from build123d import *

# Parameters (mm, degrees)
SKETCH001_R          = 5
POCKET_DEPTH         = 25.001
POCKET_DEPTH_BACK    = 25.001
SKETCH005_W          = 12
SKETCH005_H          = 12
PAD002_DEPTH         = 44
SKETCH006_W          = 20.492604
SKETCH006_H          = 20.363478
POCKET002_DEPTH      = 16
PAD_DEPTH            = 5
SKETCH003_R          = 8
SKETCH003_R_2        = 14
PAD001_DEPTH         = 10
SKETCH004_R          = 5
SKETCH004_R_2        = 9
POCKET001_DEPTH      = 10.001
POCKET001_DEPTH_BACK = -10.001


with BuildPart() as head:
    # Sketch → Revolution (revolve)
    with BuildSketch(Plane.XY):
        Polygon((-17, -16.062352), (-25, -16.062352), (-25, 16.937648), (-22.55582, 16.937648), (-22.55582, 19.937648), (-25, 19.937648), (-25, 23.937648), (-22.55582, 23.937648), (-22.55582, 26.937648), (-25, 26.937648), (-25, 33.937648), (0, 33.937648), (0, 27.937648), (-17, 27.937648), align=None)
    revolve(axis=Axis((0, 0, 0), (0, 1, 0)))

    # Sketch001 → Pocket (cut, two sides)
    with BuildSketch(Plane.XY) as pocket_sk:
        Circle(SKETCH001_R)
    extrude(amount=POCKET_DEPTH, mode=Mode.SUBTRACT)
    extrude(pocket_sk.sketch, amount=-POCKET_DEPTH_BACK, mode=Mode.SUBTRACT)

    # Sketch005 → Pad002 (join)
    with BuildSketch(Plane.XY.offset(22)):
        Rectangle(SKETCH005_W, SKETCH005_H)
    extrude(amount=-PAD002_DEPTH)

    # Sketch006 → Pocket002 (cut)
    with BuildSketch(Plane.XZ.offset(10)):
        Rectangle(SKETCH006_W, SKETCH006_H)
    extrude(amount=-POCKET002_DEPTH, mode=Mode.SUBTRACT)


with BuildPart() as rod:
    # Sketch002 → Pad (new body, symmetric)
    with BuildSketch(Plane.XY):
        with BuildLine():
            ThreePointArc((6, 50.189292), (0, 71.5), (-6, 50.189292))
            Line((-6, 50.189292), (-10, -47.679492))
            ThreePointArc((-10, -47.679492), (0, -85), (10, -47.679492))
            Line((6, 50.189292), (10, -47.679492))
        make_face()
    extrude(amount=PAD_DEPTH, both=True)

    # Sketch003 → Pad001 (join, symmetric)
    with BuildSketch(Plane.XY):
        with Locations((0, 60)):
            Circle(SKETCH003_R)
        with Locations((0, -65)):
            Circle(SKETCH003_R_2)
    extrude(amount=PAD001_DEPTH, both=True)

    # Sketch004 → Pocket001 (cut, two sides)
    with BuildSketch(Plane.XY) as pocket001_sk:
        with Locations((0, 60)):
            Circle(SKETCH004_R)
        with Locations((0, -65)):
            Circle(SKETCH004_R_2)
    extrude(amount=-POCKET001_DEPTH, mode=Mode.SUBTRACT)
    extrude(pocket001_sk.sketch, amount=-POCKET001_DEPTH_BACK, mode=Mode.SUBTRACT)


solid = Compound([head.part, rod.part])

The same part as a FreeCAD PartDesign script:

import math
import FreeCAD as App
import Part
import Sketcher
from FreeCAD import Vector

doc = App.newDocument("Part")
body = doc.addObject("PartDesign::Body", "Body")

# Sketch on XY plane
sketch1 = doc.addObject("Sketcher::SketchObject", "Sketch")
body.addObject(sketch1)
sketch1.AttachmentSupport = (doc.XY_Plane, [""])
sketch1.MapMode = "FlatFace"
sketch1.addGeometry([
    Part.LineSegment(Vector(-25, -16.1, 0), Vector(-17, -16.1, 0)),  # 0
    Part.LineSegment(Vector(-17, -16.1, 0), Vector(-17, 27.9, 0)),  # 1
    Part.LineSegment(Vector(-17, 27.9, 0), Vector(0, 27.9, 0)),  # 2
    Part.LineSegment(Vector(0, 27.9, 0), Vector(0, 33.9, 0)),  # 3
    Part.LineSegment(Vector(0, 33.9, 0), Vector(-25, 33.9, 0)),  # 4
    Part.LineSegment(Vector(-25, 33.9, 0), Vector(-25, 26.9, 0)),  # 5
    Part.LineSegment(Vector(-25, 26.9, 0), Vector(-22.6, 26.9, 0)),  # 6
    Part.LineSegment(Vector(-22.6, 26.9, 0), Vector(-22.6, 23.9, 0)),  # 7
    Part.LineSegment(Vector(-22.6, 23.9, 0), Vector(-25, 23.9, 0)),  # 8
    Part.LineSegment(Vector(-25, 23.9, 0), Vector(-25, 19.9, 0)),  # 9
    Part.LineSegment(Vector(-25, 19.9, 0), Vector(-22.6, 19.9, 0)),  # 10
    Part.LineSegment(Vector(-22.6, 19.9, 0), Vector(-22.6, 16.9, 0)),  # 11
    Part.LineSegment(Vector(-22.6, 16.9, 0), Vector(-25, 16.9, 0)),  # 12
    Part.LineSegment(Vector(-25, 16.9, 0), Vector(-25, -16.1, 0)),  # 13
], False)
sketch1.addConstraint([
    Sketcher.Constraint("Coincident", 0, 2, 1, 1),
    Sketcher.Constraint("Coincident", 1, 2, 2, 1),
    Sketcher.Constraint("Coincident", 2, 2, 3, 1),
    Sketcher.Constraint("Coincident", 3, 2, 4, 1),
    Sketcher.Constraint("Coincident", 4, 2, 5, 1),
    Sketcher.Constraint("Coincident", 5, 2, 6, 1),
    Sketcher.Constraint("Coincident", 6, 2, 7, 1),
    Sketcher.Constraint("Coincident", 7, 2, 8, 1),
    Sketcher.Constraint("Coincident", 8, 2, 9, 1),
    Sketcher.Constraint("Coincident", 9, 2, 10, 1),
    Sketcher.Constraint("Coincident", 10, 2, 11, 1),
    Sketcher.Constraint("Coincident", 11, 2, 12, 1),
    Sketcher.Constraint("Coincident", 12, 2, 13, 1),
    Sketcher.Constraint("Coincident", 13, 2, 0, 1),
    Sketcher.Constraint("Horizontal", 0),
    Sketcher.Constraint("Vertical", 1),
    Sketcher.Constraint("Horizontal", 2),
    Sketcher.Constraint("Vertical", 3),
    Sketcher.Constraint("Horizontal", 4),
    Sketcher.Constraint("Vertical", 5),
    Sketcher.Constraint("Horizontal", 6),
    Sketcher.Constraint("Vertical", 7),
    Sketcher.Constraint("Horizontal", 8),
    Sketcher.Constraint("Vertical", 9),
    Sketcher.Constraint("Horizontal", 10),
    Sketcher.Constraint("Vertical", 11),
    Sketcher.Constraint("Horizontal", 12),
    Sketcher.Constraint("Vertical", 13),
    Sketcher.Constraint("PointOnObject", 2, 2, -2),
    Sketcher.Constraint("Vertical", 5, 2, 8, 2),
    Sketcher.Constraint("Vertical", 7, 2, 10, 2),
    Sketcher.Constraint("Vertical", 9, 2, 12, 2),
    Sketcher.Constraint("Equal", 7, 11),
    Sketcher.Constraint("DistanceX", 0, 1, 0, 2, 8.0),
    Sketcher.Constraint("DistanceX", 2, 1, 2, 2, 17.0),
    Sketcher.Constraint("DistanceY", 1, 1, 1, 2, 44.0),
    Sketcher.Constraint("DistanceY", 3, 1, 3, 2, 6.0),
    Sketcher.Constraint("DistanceY", 5, 2, 5, 1, 7.0),
    Sketcher.Constraint("DistanceY", 7, 2, 7, 1, 3.0),
    Sketcher.Constraint("DistanceY", 9, 2, 9, 1, 4.0),
    Sketcher.Constraint("DistanceX", 6, 1, 6, 2, 2.44418),
    Sketcher.Constraint("DistanceY", -1, 1, 3, 2, 33.937648),
])
revolution = doc.addObject("PartDesign::Revolution", "Revolution")
body.addObject(revolution)
revolution.Profile = sketch1
revolution.ReferenceAxis = (sketch1, ["V_Axis"])
revolution.Angle = 360

# Sketch on XY plane
sketch2 = doc.addObject("Sketcher::SketchObject", "Sketch001")
body.addObject(sketch2)
sketch2.AttachmentSupport = (doc.XY_Plane, [""])
sketch2.MapMode = "FlatFace"
sketch2.addGeometry(Part.Circle(Vector(0, 0, 0), Vector(0, 0, 1), 5), False)
sketch2.addConstraint([
    Sketcher.Constraint("Coincident", 0, 3, -1, 1),
    Sketcher.Constraint("Diameter", 0, 10.0),
])
pocket1 = doc.addObject("PartDesign::Pocket", "Pocket")
body.addObject(pocket1)
pocket1.Profile = sketch2
pocket1.Type = "ThroughAll"
pocket1.Midplane = True

# Sketch on XY plane
sketch3 = doc.addObject("Sketcher::SketchObject", "Sketch002")
body.addObject(sketch3)
sketch3.AttachmentSupport = (doc.XY_Plane, [""])
sketch3.MapMode = "FlatFace"
sketch3.AttachmentOffset = App.Placement(Vector(0, 0, 22), App.Rotation())
sketch3.addGeometry([
    Part.LineSegment(Vector(-6, 6, 0), Vector(-6, -6, 0)),
    Part.LineSegment(Vector(-6, -6, 0), Vector(6, -6, 0)),
    Part.LineSegment(Vector(6, -6, 0), Vector(6, 6, 0)),
    Part.LineSegment(Vector(6, 6, 0), Vector(-6, 6, 0)),
], False)
sketch3.addConstraint([
    Sketcher.Constraint("Coincident", 0, 2, 1, 1),
    Sketcher.Constraint("Coincident", 1, 2, 2, 1),
    Sketcher.Constraint("Coincident", 2, 2, 3, 1),
    Sketcher.Constraint("Coincident", 3, 2, 0, 1),
    Sketcher.Constraint("Vertical", 0),
    Sketcher.Constraint("Horizontal", 1),
    Sketcher.Constraint("Vertical", 2),
    Sketcher.Constraint("Horizontal", 3),
    Sketcher.Constraint("Symmetric", 0, 2, 2, 2, -1, 1),
    Sketcher.Constraint("Equal", 3, 0),
    Sketcher.Constraint("DistanceX", 1, 1, 1, 2, 12.0),
])
pad1 = doc.addObject("PartDesign::Pad", "Pad")
body.addObject(pad1)
pad1.Profile = sketch3
pad1.Length = 44
pad1.Reversed = True

# Sketch on XZ plane
sketch4 = doc.addObject("Sketcher::SketchObject", "Sketch003")
body.addObject(sketch4)
sketch4.AttachmentSupport = (doc.XZ_Plane, [""])
sketch4.MapMode = "FlatFace"
sketch4.AttachmentOffset = App.Placement(Vector(0, 0, 10), App.Rotation())
sketch4.addGeometry([
    Part.LineSegment(Vector(-10, 10, 0), Vector(-10, -10, 0)),
    Part.LineSegment(Vector(-10, -10, 0), Vector(10, -10, 0)),
    Part.LineSegment(Vector(10, -10, 0), Vector(10, 10, 0)),
    Part.LineSegment(Vector(10, 10, 0), Vector(-10, 10, 0)),
], False)
sketch4.addConstraint([
    Sketcher.Constraint("Coincident", 0, 2, 1, 1),
    Sketcher.Constraint("Coincident", 1, 2, 2, 1),
    Sketcher.Constraint("Coincident", 2, 2, 3, 1),
    Sketcher.Constraint("Coincident", 3, 2, 0, 1),
    Sketcher.Constraint("Vertical", 0),
    Sketcher.Constraint("Horizontal", 1),
    Sketcher.Constraint("Vertical", 2),
    Sketcher.Constraint("Horizontal", 3),
    Sketcher.Constraint("Symmetric", 0, 2, 2, 2, -1, 1),
    Sketcher.Constraint("DistanceY", 0, 2, 0, 1, 20.363478),
    Sketcher.Constraint("DistanceX", 1, 1, 1, 2, 20.492604),
])
pocket2 = doc.addObject("PartDesign::Pocket", "Pocket001")
body.addObject(pocket2)
pocket2.Profile = sketch4
pocket2.Length = 16
body2 = doc.addObject("PartDesign::Body", "Body001")

# Sketch on XY plane
sketch5 = doc.addObject("Sketcher::SketchObject", "Sketch004")
body2.addObject(sketch5)
sketch5.AttachmentSupport = (doc.getObject("XY_Plane001"), [""])
sketch5.MapMode = "FlatFace"
sketch5.addGeometry([
    Part.ArcOfCircle(Part.Circle(Vector(0, 60, 0), Vector(0, 0, 1), 11), math.radians(-59), math.radians(239)),
    Part.LineSegment(Vector(-6, 50, 0), Vector(-10, -48, 0)),
    Part.ArcOfCircle(Part.Circle(Vector(0, -65, 0), Vector(0, 0, 1), 20), math.radians(120), math.radians(420)),
    Part.LineSegment(Vector(10, -48, 0), Vector(6, 50, 0)),
], False)
sketch5.addConstraint([
    Sketcher.Constraint("Coincident", 0, 2, 1, 1),
    Sketcher.Constraint("Coincident", 1, 2, 2, 1),
    Sketcher.Constraint("Coincident", 2, 2, 3, 1),
    Sketcher.Constraint("Coincident", 3, 2, 0, 1),
    Sketcher.Constraint("Symmetric", 1, 2, 2, 2, -2),
    Sketcher.Constraint("Symmetric", 0, 2, 3, 2, -2),
    Sketcher.Constraint("Radius", 2, 20.0),
    Sketcher.Constraint("Radius", 0, 11.5),
    Sketcher.Constraint("DistanceY", -1, 1, 0, 3, 60.0),
    Sketcher.Constraint("DistanceY", 2, 3, -1, 1, 65.0),
    Sketcher.Constraint("DistanceX", 0, 2, -1, 1, 6.0),
    Sketcher.Constraint("DistanceX", 1, 2, -1, 1, 10.0),
])
pad2 = doc.addObject("PartDesign::Pad", "Pad001")
body2.addObject(pad2)
pad2.Profile = sketch5
pad2.Length = 10
pad2.Midplane = True

# Sketch on XY plane
sketch6 = doc.addObject("Sketcher::SketchObject", "Sketch005")
body2.addObject(sketch6)
sketch6.AttachmentSupport = (doc.getObject("XY_Plane001"), [""])
sketch6.MapMode = "FlatFace"
sketch6.addGeometry([
    Part.Circle(Vector(0, 60, 0), Vector(0, 0, 1), 8),
    Part.Circle(Vector(0, -65, 0), Vector(0, 0, 1), 14),
], False)
sketch6.addConstraint([
    Sketcher.Constraint("PointOnObject", 0, 3, -2),
    Sketcher.Constraint("PointOnObject", 1, 3, -2),
    Sketcher.Constraint("Diameter", 0, 16.0),
    Sketcher.Constraint("Diameter", 1, 28.0),
    Sketcher.Constraint("DistanceY", -1, 1, 0, 3, 60.0),
    Sketcher.Constraint("DistanceY", 1, 3, -1, 1, 65.0),
])
pad3 = doc.addObject("PartDesign::Pad", "Pad002")
body2.addObject(pad3)
pad3.Profile = sketch6
pad3.Length = 20
pad3.Midplane = True

# Sketch on XY plane
sketch7 = doc.addObject("Sketcher::SketchObject", "Sketch006")
body2.addObject(sketch7)
sketch7.AttachmentSupport = (doc.getObject("XY_Plane001"), [""])
sketch7.MapMode = "FlatFace"
sketch7.addGeometry([
    Part.Circle(Vector(0, 60, 0), Vector(0, 0, 1), 5),
    Part.Circle(Vector(0, -65, 0), Vector(0, 0, 1), 9),
], False)
sketch7.addConstraint([
    Sketcher.Constraint("PointOnObject", 0, 3, -2),
    Sketcher.Constraint("PointOnObject", 1, 3, -2),
    Sketcher.Constraint("Diameter", 0, 10.0),
    Sketcher.Constraint("Diameter", 1, 18.0),
    Sketcher.Constraint("DistanceY", -1, 1, 0, 3, 60.0),
    Sketcher.Constraint("DistanceY", 1, 3, -1, 1, 65.0),
])
pocket3 = doc.addObject("PartDesign::Pocket", "Pocket002")
body2.addObject(pocket3)
pocket3.Profile = sketch7
pocket3.Type = "ThroughAll"
pocket3.Midplane = True

doc.recompute()
